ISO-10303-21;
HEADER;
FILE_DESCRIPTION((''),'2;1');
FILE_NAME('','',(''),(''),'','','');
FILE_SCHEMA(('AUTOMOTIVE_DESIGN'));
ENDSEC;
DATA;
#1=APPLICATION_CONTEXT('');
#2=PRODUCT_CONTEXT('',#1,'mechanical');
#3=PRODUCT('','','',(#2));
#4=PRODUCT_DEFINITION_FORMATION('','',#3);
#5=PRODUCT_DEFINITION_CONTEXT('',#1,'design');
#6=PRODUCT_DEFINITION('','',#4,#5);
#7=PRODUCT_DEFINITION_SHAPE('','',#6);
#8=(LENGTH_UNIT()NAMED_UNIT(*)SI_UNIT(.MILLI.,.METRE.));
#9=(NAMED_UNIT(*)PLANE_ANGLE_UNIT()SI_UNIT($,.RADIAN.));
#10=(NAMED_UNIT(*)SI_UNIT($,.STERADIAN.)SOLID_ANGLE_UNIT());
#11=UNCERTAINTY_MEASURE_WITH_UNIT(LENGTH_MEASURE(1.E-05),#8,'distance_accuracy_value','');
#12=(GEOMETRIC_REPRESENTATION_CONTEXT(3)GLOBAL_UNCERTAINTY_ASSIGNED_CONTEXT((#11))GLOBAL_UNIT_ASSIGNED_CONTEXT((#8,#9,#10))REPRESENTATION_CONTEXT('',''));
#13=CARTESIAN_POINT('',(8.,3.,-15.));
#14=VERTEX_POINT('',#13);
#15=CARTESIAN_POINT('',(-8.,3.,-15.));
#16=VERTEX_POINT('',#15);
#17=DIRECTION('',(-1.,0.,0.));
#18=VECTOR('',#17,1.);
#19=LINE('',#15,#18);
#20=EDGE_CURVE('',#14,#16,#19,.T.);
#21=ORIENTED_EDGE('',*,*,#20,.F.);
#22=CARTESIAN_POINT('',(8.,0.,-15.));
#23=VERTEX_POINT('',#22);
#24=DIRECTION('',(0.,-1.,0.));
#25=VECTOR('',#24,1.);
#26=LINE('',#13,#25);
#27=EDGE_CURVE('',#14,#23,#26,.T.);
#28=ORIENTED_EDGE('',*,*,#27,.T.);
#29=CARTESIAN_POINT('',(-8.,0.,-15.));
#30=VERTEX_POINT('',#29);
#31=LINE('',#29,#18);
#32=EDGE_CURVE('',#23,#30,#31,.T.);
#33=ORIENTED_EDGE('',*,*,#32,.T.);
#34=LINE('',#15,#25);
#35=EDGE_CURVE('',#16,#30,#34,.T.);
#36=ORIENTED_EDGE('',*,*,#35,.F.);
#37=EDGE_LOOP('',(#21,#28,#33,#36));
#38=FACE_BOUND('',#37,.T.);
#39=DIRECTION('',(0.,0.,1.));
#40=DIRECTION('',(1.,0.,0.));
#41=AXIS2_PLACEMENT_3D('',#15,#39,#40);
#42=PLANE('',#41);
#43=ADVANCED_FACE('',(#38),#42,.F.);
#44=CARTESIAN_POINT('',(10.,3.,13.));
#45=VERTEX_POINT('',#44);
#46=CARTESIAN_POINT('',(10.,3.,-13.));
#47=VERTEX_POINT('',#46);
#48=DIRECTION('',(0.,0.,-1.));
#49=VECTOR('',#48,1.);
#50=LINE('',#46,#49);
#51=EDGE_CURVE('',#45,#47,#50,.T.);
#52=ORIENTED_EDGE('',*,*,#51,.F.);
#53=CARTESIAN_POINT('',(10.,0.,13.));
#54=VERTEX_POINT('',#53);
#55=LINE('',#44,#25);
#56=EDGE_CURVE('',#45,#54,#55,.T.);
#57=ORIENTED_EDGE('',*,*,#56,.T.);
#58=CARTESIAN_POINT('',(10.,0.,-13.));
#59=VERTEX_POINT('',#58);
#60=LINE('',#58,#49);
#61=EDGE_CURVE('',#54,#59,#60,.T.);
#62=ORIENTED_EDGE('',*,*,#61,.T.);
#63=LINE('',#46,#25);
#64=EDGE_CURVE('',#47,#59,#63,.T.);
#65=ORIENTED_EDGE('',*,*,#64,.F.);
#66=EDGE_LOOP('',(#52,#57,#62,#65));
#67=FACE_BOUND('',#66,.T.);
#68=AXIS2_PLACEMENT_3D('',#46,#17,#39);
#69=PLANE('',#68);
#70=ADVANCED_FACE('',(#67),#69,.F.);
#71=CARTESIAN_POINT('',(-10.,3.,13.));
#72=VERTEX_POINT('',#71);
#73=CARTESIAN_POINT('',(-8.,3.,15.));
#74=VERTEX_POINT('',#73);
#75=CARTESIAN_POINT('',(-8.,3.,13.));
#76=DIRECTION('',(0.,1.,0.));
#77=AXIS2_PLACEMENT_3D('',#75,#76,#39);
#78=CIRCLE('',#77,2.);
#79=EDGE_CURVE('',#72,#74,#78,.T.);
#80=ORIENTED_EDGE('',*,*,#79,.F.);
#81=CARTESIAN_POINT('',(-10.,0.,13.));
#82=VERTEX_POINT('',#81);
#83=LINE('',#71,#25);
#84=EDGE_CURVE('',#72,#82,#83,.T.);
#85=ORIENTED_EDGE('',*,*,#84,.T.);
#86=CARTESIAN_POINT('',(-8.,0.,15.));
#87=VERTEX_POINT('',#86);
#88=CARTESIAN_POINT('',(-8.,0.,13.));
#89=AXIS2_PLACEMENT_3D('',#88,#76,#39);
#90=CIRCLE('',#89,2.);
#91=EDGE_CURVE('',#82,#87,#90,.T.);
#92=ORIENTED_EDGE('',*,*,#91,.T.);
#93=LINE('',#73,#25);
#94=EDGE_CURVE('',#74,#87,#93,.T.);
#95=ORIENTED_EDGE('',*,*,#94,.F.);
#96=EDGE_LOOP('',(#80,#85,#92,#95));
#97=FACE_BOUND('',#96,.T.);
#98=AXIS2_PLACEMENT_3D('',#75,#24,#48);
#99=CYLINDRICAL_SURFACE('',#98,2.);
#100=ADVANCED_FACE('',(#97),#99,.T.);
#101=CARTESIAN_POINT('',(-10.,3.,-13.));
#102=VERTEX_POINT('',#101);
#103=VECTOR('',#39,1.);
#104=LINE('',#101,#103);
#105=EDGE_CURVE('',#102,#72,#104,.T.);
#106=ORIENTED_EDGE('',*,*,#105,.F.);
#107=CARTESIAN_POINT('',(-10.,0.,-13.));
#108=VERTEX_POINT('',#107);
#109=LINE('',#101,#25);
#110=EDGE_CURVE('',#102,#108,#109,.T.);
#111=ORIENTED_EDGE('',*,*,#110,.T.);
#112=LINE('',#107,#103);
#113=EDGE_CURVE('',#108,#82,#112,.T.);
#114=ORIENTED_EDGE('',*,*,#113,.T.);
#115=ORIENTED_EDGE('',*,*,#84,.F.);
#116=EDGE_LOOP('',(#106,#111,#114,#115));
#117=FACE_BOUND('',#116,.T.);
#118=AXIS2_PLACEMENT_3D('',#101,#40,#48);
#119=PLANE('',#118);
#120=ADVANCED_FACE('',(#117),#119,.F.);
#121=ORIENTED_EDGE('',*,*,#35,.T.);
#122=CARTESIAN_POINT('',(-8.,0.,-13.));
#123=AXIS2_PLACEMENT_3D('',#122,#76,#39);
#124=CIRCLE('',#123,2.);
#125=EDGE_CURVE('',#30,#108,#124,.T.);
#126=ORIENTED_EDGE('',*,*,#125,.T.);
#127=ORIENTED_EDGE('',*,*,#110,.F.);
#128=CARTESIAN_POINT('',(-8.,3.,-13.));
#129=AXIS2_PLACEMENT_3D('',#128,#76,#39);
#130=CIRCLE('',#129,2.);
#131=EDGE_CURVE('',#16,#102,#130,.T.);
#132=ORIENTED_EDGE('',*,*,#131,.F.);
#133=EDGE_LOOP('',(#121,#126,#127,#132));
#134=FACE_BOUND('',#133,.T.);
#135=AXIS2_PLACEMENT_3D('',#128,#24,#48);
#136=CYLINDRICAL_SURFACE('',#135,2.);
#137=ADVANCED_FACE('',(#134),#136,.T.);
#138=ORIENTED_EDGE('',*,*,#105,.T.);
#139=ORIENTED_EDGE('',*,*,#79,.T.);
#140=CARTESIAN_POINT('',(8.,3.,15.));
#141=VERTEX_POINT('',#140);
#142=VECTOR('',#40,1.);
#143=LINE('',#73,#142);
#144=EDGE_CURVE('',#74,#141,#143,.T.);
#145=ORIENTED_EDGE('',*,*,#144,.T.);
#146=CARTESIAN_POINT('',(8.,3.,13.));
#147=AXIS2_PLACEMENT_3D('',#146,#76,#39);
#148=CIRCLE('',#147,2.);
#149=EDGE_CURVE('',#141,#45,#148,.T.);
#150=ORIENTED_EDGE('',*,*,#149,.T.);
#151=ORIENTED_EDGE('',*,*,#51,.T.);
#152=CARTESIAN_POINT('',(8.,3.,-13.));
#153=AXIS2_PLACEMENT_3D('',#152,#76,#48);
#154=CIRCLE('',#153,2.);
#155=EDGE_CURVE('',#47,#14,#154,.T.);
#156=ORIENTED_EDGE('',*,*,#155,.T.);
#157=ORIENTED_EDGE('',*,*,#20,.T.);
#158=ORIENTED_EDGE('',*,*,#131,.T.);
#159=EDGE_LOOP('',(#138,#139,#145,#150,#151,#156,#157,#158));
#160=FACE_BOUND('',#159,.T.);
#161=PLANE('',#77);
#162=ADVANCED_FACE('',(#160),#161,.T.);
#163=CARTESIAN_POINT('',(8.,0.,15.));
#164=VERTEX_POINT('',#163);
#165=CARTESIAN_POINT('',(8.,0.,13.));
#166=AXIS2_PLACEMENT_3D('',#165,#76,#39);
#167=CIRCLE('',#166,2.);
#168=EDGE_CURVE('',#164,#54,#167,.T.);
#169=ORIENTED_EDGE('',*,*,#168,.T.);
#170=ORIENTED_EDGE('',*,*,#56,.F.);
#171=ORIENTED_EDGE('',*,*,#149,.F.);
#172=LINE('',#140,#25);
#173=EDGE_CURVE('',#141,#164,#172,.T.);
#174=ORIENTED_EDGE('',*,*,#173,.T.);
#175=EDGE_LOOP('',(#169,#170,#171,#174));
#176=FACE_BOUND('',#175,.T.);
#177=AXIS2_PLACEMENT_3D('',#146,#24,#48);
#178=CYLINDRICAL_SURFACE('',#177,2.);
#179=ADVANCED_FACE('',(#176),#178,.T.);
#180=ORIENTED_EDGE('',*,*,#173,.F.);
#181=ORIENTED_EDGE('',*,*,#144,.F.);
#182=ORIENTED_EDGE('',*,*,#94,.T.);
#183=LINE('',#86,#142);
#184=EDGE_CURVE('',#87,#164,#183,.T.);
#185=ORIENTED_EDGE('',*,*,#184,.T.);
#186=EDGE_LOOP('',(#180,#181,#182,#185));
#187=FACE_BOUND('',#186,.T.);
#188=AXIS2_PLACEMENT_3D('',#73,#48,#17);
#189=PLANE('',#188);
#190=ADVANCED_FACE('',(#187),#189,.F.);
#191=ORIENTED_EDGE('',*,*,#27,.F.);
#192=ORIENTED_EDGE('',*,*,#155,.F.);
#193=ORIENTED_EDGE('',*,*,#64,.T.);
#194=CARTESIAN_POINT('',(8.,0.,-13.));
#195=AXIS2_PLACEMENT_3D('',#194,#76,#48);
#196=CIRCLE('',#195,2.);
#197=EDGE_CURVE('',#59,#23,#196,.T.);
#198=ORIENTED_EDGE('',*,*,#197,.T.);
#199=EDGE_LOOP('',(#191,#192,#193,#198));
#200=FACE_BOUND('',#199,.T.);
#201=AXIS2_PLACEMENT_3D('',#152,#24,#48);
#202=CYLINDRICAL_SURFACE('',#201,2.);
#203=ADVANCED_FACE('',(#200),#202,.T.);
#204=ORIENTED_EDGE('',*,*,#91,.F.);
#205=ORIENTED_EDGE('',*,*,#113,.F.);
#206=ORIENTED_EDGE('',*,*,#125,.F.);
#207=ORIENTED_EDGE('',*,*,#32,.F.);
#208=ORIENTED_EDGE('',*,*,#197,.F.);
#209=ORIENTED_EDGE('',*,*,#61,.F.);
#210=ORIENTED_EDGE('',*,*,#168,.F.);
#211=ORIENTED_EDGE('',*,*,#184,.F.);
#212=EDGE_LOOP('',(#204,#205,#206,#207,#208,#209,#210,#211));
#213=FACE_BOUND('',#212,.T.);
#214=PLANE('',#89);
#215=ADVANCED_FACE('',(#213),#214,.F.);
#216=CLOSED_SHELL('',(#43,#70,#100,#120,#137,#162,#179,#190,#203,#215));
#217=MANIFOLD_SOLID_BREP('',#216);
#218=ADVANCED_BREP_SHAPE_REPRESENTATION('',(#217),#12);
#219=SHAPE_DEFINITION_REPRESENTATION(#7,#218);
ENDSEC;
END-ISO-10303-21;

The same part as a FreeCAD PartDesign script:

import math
import FreeCAD as App
import Part
import Sketcher

V = App.Vector
Q = App.Units.Quantity

doc = App.newDocument("Part")
body = doc.addObject("PartDesign::Body", "Body")

# Sketch on XZ plane
sketch1 = body.newObject("Sketcher::SketchObject", "Sketch")
sketch1.AttachmentSupport = (doc.getObject("XZ_Plane"), [""])
sketch1.MapMode = "FlatFace"
sketch1.addGeometry(Part.LineSegment(V(8, -15, 0), V(-8, -15, 0)), False)
sketch1.addGeometry(Part.ArcOfCircle(Part.Circle(V(-8, -13, 0), V(0, 0, 1), 2), math.radians(-180), math.radians(-90)), False)
sketch1.addGeometry(Part.LineSegment(V(-10, -13, 0), V(-10, 13, 0)), False)
sketch1.addGeometry(Part.ArcOfCircle(Part.Circle(V(-8, 13, 0), V(0, 0, 1), 2), math.radians(90), math.radians(180)), False)
sketch1.addGeometry(Part.LineSegment(V(-8, 15, 0), V(8, 15, 0)), False)
sketch1.addGeometry(Part.ArcOfCircle(Part.Circle(V(8, 13, 0), V(0, 0, 1), 2), math.radians(0), math.radians(90)), False)
sketch1.addGeometry(Part.LineSegment(V(10, 13, 0), V(10, -13, 0)), False)
sketch1.addGeometry(Part.ArcOfCircle(Part.Circle(V(8, -13, 0), V(0, 0, 1), 2), math.radians(-90), math.radians(0)), False)
sketch1.addConstraint(Sketcher.Constraint("Tangent", 0, 2, 1, 2))
sketch1.addConstraint(Sketcher.Constraint("Tangent", 1, 1, 2, 1))
sketch1.addConstraint(Sketcher.Constraint("Tangent", 2, 2, 3, 2))
sketch1.addConstraint(Sketcher.Constraint("Tangent", 3, 1, 4, 1))
sketch1.addConstraint(Sketcher.Constraint("Tangent", 4, 2, 5, 2))
sketch1.addConstraint(Sketcher.Constraint("Tangent", 5, 1, 6, 1))
sketch1.addConstraint(Sketcher.Constraint("Tangent", 6, 2, 7, 2))
sketch1.addConstraint(Sketcher.Constraint("Tangent", 7, 1, 0, 1))
sketch1.addConstraint(Sketcher.Constraint("Horizontal", 0))
sketch1.addConstraint(Sketcher.Constraint("Vertical", 2))
sketch1.addConstraint(Sketcher.Constraint("Horizontal", 4))
sketch1.addConstraint(Sketcher.Constraint("Vertical", 6))
sketch1.addConstraint(Sketcher.Constraint("Equal", 1, 3))
sketch1.addConstraint(Sketcher.Constraint("Equal", 3, 5))
sketch1.addConstraint(Sketcher.Constraint("Equal", 5, 7))
sketch1.addConstraint(Sketcher.Constraint("Symmetric", 1, 3, 5, 3, -1, 1))
sketch1.addConstraint(Sketcher.Constraint("Radius", 1, Q("2 mm")))
sketch1.addConstraint(Sketcher.Constraint("DistanceX", 0, 2, 0, 1, Q("16 mm")))
sketch1.addConstraint(Sketcher.Constraint("DistanceY", 2, 1, 2, 2, Q("26 mm")))
pad1 = body.newObject("PartDesign::Pad", "Pad")
pad1.Profile = sketch1
pad1.Length = 3
pad1.Reversed = True

doc.recompute()
